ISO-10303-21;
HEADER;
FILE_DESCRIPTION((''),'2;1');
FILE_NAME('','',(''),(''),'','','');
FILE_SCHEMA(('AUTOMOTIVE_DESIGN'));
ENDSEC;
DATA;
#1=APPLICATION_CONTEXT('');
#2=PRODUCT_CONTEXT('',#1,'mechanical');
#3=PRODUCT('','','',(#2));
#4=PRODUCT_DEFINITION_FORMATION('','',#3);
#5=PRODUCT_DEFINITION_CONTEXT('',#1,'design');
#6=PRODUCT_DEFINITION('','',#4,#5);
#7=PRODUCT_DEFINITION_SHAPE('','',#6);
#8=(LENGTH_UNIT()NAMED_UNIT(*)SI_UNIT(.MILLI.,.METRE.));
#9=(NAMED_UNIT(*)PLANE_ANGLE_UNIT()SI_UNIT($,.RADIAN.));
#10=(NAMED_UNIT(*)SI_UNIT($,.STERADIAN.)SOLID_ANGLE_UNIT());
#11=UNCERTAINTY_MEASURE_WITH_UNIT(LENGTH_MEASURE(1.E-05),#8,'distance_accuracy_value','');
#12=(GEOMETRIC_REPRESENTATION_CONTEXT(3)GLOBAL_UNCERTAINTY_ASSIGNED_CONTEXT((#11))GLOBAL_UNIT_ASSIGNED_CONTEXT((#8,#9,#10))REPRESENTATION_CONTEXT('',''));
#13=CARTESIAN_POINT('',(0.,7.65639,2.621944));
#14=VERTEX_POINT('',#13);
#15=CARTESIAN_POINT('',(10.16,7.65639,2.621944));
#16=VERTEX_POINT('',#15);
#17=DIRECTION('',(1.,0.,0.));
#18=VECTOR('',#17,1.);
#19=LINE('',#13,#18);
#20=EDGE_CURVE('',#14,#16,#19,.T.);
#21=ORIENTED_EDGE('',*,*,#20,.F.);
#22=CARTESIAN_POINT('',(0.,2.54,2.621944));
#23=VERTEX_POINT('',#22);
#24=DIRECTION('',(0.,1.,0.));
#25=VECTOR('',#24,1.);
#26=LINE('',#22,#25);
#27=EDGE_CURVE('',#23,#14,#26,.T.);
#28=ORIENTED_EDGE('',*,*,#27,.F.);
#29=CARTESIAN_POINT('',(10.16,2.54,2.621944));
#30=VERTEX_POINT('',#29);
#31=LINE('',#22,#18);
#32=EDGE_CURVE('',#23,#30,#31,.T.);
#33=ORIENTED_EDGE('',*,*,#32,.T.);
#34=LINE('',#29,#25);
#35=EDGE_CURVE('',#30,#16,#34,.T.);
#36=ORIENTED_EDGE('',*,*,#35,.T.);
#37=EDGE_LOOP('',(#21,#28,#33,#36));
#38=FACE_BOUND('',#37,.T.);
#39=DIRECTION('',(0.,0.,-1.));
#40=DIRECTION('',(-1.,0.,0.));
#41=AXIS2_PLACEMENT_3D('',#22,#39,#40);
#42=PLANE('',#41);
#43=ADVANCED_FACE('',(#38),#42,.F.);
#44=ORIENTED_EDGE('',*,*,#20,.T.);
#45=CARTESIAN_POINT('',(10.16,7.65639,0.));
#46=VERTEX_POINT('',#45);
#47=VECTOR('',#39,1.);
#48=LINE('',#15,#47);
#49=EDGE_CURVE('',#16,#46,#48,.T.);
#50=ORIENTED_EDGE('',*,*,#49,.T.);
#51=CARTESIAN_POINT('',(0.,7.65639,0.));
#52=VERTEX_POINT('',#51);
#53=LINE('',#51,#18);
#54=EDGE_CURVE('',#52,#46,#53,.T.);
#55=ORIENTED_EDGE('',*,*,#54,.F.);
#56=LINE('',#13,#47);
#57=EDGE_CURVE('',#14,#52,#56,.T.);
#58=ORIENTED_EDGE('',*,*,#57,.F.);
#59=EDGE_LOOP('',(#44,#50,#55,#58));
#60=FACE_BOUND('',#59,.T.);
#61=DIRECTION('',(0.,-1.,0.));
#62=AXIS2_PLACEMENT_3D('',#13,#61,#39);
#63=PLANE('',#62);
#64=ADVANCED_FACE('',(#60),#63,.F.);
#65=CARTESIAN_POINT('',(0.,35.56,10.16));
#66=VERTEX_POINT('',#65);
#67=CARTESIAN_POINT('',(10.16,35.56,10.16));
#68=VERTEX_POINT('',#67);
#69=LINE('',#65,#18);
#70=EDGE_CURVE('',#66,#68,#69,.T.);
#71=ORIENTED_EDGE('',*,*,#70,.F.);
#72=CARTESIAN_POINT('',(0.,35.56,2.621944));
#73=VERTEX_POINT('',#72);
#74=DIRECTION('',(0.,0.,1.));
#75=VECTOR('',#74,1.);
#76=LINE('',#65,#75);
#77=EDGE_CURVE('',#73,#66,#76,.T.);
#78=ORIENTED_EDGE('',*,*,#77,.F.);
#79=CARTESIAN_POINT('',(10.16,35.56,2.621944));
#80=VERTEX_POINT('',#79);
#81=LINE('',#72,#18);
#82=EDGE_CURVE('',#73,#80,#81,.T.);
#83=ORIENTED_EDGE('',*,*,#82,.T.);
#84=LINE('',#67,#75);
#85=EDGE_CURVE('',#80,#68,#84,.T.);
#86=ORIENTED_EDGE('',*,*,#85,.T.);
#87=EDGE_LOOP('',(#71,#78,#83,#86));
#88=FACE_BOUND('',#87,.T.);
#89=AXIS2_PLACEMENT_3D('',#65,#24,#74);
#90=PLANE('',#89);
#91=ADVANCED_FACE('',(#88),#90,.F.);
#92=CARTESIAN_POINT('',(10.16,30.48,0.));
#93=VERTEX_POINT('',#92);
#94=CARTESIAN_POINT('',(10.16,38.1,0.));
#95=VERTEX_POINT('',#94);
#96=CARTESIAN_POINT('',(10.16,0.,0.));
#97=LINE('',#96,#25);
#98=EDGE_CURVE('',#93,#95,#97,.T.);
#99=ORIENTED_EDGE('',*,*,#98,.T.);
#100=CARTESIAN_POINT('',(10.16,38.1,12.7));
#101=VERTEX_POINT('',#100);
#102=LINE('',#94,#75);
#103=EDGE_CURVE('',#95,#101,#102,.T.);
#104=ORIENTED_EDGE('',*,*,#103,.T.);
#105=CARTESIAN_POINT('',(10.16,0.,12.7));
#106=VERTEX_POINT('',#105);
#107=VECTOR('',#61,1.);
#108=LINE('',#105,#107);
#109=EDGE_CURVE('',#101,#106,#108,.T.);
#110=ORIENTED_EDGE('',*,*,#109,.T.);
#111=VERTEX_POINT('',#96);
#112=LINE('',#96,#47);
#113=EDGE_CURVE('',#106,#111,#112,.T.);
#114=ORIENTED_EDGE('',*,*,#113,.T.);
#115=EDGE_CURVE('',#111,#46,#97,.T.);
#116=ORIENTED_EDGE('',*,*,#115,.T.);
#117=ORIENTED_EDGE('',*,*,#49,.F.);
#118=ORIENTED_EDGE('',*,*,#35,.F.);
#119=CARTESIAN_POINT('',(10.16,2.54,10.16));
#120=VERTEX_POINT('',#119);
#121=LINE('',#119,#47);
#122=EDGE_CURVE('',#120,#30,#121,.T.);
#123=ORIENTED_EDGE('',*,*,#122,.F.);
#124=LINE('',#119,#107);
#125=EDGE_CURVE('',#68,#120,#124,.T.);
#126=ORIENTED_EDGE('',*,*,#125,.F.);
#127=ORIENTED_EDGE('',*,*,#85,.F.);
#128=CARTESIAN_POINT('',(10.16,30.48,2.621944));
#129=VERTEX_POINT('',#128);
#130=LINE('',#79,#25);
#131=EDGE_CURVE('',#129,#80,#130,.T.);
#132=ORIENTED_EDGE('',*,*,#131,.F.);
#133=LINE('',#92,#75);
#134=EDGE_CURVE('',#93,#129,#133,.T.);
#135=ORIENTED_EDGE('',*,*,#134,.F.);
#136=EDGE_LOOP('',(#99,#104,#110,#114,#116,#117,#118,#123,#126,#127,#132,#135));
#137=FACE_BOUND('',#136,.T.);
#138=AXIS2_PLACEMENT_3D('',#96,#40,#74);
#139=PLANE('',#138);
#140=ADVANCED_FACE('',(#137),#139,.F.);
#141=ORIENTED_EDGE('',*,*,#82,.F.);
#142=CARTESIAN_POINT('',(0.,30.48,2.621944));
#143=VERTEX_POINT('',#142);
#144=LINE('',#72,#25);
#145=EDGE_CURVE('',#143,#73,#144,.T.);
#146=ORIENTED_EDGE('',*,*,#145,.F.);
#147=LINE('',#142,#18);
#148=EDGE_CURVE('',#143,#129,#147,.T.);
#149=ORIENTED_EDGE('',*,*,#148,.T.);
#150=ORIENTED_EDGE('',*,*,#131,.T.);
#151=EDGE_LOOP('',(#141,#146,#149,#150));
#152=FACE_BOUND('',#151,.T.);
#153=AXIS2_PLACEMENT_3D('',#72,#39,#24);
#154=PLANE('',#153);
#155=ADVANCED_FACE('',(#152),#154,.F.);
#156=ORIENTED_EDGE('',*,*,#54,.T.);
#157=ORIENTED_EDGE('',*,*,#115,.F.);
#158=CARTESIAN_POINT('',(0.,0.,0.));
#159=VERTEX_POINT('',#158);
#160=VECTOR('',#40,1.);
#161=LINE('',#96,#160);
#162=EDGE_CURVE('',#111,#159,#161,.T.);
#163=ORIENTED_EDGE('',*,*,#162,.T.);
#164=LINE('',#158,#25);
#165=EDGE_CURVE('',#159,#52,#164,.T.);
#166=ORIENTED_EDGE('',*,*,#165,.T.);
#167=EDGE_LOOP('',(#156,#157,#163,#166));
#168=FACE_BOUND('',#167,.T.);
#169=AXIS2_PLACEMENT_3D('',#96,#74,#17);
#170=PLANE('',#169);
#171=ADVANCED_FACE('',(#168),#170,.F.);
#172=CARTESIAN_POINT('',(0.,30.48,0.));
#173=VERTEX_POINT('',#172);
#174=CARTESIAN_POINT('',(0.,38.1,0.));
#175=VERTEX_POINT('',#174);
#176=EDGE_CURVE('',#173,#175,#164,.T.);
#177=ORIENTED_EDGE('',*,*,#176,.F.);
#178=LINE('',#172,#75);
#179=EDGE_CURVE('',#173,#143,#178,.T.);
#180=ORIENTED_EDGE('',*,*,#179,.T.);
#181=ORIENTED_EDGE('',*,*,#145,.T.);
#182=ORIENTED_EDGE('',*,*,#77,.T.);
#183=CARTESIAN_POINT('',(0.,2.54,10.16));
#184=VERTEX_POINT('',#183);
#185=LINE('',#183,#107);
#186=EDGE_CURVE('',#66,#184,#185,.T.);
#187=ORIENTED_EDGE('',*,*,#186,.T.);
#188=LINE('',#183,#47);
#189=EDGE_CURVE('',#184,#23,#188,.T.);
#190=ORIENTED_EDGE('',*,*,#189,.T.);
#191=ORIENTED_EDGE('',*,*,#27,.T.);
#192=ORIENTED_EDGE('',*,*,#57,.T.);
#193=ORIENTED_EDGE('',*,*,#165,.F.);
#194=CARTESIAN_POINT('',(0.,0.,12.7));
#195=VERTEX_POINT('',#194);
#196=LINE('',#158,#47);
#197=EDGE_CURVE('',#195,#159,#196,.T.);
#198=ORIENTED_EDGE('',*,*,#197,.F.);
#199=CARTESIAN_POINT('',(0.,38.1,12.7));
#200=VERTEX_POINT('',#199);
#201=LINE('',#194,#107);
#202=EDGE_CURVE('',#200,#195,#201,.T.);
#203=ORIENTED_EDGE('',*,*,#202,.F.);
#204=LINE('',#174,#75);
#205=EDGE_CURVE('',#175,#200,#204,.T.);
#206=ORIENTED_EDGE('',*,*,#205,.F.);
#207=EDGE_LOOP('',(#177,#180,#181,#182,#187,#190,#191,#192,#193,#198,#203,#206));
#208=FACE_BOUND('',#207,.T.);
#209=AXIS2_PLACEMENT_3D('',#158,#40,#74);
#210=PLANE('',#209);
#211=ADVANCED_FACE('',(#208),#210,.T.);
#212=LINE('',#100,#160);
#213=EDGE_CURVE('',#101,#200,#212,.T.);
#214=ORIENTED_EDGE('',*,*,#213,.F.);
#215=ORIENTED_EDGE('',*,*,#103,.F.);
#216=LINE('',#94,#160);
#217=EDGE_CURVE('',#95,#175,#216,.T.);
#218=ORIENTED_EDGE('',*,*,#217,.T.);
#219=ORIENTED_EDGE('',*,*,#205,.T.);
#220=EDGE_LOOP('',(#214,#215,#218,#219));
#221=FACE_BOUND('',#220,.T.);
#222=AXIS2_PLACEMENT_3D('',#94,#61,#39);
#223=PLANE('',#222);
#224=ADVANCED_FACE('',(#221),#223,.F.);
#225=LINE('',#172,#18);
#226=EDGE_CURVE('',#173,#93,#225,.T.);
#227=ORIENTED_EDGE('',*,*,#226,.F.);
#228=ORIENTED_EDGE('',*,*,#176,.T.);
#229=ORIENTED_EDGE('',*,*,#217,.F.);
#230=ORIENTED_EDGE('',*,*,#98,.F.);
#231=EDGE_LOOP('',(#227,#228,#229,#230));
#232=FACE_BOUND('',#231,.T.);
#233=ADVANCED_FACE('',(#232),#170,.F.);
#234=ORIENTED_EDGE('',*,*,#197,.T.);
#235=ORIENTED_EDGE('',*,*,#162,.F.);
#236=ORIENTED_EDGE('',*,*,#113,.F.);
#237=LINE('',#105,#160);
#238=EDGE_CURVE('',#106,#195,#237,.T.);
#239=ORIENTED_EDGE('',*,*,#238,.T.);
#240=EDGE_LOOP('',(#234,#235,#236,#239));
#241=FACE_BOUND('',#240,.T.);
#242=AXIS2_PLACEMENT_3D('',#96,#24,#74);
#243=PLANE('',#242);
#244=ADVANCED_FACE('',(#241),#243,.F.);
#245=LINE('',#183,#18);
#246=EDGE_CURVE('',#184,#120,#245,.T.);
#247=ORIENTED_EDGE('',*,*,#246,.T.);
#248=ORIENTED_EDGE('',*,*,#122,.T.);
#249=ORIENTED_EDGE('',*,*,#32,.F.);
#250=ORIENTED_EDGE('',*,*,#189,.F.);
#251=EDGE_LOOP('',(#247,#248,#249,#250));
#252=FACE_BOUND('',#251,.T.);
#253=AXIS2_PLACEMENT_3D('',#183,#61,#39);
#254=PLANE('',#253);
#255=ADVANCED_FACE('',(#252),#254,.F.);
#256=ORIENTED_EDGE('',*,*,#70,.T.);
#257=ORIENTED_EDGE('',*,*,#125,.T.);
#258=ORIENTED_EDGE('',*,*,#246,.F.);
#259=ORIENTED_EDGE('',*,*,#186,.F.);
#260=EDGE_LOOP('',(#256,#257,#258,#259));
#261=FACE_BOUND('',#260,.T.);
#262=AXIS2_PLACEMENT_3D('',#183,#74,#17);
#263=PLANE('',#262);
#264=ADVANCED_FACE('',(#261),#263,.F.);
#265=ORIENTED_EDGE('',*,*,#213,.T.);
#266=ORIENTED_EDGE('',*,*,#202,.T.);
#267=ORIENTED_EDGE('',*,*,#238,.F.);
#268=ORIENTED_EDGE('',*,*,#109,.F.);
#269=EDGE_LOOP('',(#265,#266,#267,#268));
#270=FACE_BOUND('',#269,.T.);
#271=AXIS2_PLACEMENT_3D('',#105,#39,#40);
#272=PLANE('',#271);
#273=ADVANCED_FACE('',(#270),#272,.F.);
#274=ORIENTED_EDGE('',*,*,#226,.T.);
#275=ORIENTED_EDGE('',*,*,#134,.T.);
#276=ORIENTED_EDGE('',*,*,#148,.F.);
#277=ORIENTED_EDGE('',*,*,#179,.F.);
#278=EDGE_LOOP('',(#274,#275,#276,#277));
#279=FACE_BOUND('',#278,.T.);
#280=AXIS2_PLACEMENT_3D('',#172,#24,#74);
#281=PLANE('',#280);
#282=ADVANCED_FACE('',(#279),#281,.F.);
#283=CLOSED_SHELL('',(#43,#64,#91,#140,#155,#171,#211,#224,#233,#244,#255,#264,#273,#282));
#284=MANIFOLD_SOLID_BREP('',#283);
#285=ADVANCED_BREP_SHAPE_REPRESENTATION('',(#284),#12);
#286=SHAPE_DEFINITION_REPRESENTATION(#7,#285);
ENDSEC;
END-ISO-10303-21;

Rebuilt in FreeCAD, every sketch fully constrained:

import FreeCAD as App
import Part
import Sketcher
Q = App.Units.Quantity

doc = App.newDocument("Part")
body = doc.addObject("PartDesign::Body", "Body")

# Sketch on YZ plane
sketch1 = doc.addObject("Sketcher::SketchObject", "Sketch")
body.addObject(sketch1)
sketch1.AttachmentSupport = (doc.YZ_Plane, [""])
sketch1.MapMode = "FlatFace"
sketch1.addGeometry([
    Part.LineSegment(App.Vector(0, 13, 0), App.Vector(0, 0, 0)),
    Part.LineSegment(App.Vector(0, 0, 0), App.Vector(38, 0, 0)),
    Part.LineSegment(App.Vector(38, 0, 0), App.Vector(38, 13, 0)),
    Part.LineSegment(App.Vector(38, 13, 0), App.Vector(0, 13, 0)),
], False)
sketch1.addConstraint([
    Sketcher.Constraint("Coincident", 0, 2, 1, 1),
    Sketcher.Constraint("Coincident", 1, 2, 2, 1),
    Sketcher.Constraint("Coincident", 2, 2, 3, 1),
    Sketcher.Constraint("Coincident", 3, 2, 0, 1),
    Sketcher.Constraint("Vertical", 0),
    Sketcher.Constraint("Horizontal", 1),
    Sketcher.Constraint("Vertical", 2),
    Sketcher.Constraint("Horizontal", 3),
    Sketcher.Constraint("Coincident", 0, 2, -1, 1),
    Sketcher.Constraint("DistanceX", 1, 1, 1, 2, Q("1.5 in")),
    Sketcher.Constraint("DistanceY", 0, 2, 0, 1, Q("0.5 in")),
])
pad1 = doc.addObject("PartDesign::Pad", "Pad")
body.addObject(pad1)
pad1.Profile = sketch1
pad1.Length = Q("0.4 in")

# Sketch on YZ plane
sketch2 = doc.addObject("Sketcher::SketchObject", "Sketch001")
body.addObject(sketch2)
sketch2.AttachmentSupport = (doc.YZ_Plane, [""])
sketch2.MapMode = "FlatFace"
sketch2.AttachmentOffset = App.Placement(App.Vector(0, 0, 0.4 * 25.4), App.Rotation())
sketch2.addGeometry([
    Part.LineSegment(App.Vector(35.6, 10.2, 0), App.Vector(2.5, 10.2, 0)),  # 0
    Part.LineSegment(App.Vector(2.5, 10.2, 0), App.Vector(2.5, 2.6, 0)),  # 1
    Part.LineSegment(App.Vector(2.5, 2.6, 0), App.Vector(7.7, 2.6, 0)),  # 2
    Part.LineSegment(App.Vector(7.7, 2.6, 0), App.Vector(7.7, 0, 0)),  # 3
    Part.LineSegment(App.Vector(7.7, 0, 0), App.Vector(30.5, 0, 0)),  # 4
    Part.LineSegment(App.Vector(30.5, 0, 0), App.Vector(30.5, 2.6, 0)),  # 5
    Part.LineSegment(App.Vector(30.5, 2.6, 0), App.Vector(35.6, 2.6, 0)),  # 6
    Part.LineSegment(App.Vector(35.6, 2.6, 0), App.Vector(35.6, 10.2, 0)),  # 7
], False)
sketch2.addConstraint([
    Sketcher.Constraint("Coincident", 0, 2, 1, 1),
    Sketcher.Constraint("Coincident", 1, 2, 2, 1),
    Sketcher.Constraint("Coincident", 2, 2, 3, 1),
    Sketcher.Constraint("Coincident", 3, 2, 4, 1),
    Sketcher.Constraint("Coincident", 4, 2, 5, 1),
    Sketcher.Constraint("Coincident", 5, 2, 6, 1),
    Sketcher.Constraint("Coincident", 6, 2, 7, 1),
    Sketcher.Constraint("Coincident", 7, 2, 0, 1),
    Sketcher.Constraint("Horizontal", 0),
    Sketcher.Constraint("Vertical", 1),
    Sketcher.Constraint("Horizontal", 2),
    Sketcher.Constraint("Vertical", 3),
    Sketcher.Constraint("Horizontal", 4),
    Sketcher.Constraint("Vertical", 5),
    Sketcher.Constraint("Horizontal", 6),
    Sketcher.Constraint("Vertical", 7),
    Sketcher.Constraint("PointOnObject", 3, 2, -1),
    Sketcher.Constraint("Horizontal", 2, 2, 5, 2),
    Sketcher.Constraint("DistanceX", 0, 2, 0, 1, Q("1.3 in")),
    Sketcher.Constraint("DistanceX", 6, 1, 6, 2, Q("0.2 in")),
    Sketcher.Constraint("DistanceX", -1, 1, 0, 2, Q("0.1 in")),
    Sketcher.Constraint("DistanceY", -1, 1, 0, 2, Q("0.4 in")),
    Sketcher.Constraint("DistanceX", 2, 1, 2, 2, Q("5.11639 mm")),
    Sketcher.Constraint("DistanceY", 1, 2, 1, 1, Q("7.538056 mm")),
])
pocket1 = doc.addObject("PartDesign::Pocket", "Pocket")
body.addObject(pocket1)
pocket1.Profile = sketch2
pocket1.Length = Q("0.4 in")

doc.recompute()
